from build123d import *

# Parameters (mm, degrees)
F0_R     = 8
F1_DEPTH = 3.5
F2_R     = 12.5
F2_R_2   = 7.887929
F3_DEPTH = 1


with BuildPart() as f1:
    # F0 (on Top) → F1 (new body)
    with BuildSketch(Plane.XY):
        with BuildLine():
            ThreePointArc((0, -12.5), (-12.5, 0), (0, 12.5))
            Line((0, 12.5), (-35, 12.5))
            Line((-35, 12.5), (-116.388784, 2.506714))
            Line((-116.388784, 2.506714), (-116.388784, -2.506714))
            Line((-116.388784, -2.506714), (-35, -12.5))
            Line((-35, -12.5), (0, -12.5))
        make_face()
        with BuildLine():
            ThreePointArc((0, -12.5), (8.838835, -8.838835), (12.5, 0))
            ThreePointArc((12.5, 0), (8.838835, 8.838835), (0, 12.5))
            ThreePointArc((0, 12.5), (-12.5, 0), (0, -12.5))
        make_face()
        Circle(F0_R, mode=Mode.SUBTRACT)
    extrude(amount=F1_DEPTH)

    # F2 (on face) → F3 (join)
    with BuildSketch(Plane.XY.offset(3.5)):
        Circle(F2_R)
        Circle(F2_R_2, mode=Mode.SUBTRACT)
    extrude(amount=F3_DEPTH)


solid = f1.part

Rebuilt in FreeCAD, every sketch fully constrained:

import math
import FreeCAD as App
import Part
import Sketcher

V = App.Vector
Q = App.Units.Quantity

doc = App.newDocument("Part")
body = doc.addObject("PartDesign::Body", "Body")

sketch1 = body.newObject("Sketcher::SketchObject", "Sketch")
sketch1.AttachmentSupport = (doc.getObject("XY_Plane"), [""])
sketch1.MapMode = "FlatFace"
sketch1.addGeometry(Part.LineSegment(V(0, 12, 0), V(-35, 12, 0)), False)
sketch1.addGeometry(Part.LineSegment(V(-35, 12, 0), V(-116, 3, 0)), False)
sketch1.addGeometry(Part.LineSegment(V(-116, 3, 0), V(-116, -3, 0)), False)
sketch1.addGeometry(Part.LineSegment(V(-116, -3, 0), V(-35, -12, 0)), False)
sketch1.addGeometry(Part.LineSegment(V(-35, -12, 0), V(0, -12, 0)), False)
sketch1.addGeometry(Part.ArcOfCircle(Part.Circle(V(0, 0, 0), V(0, 0, 1), 12), math.radians(-90), math.radians(0)), False)
sketch1.addGeometry(Part.ArcOfCircle(Part.Circle(V(0, 0, 0), V(0, 0, 1), 12), math.radians(0), math.radians(90)), False)
sketch1.addGeometry(Part.Circle(V(0, 0, 0), V(0, 0, 1), 8), False)
sketch1.addConstraint(Sketcher.Constraint("Coincident", 0, 2, 1, 1))
sketch1.addConstraint(Sketcher.Constraint("Coincident", 1, 2, 2, 1))
sketch1.addConstraint(Sketcher.Constraint("Coincident", 2, 2, 3, 1))
sketch1.addConstraint(Sketcher.Constraint("Coincident", 3, 2, 4, 1))
sketch1.addConstraint(Sketcher.Constraint("Tangent", 4, 2, 5, 1))
sketch1.addConstraint(Sketcher.Constraint("Tangent", 5, 2, 6, 1))
sketch1.addConstraint(Sketcher.Constraint("Tangent", 6, 2, 0, 1))
sketch1.addConstraint(Sketcher.Constraint("Horizontal", 0))
sketch1.addConstraint(Sketcher.Constraint("Vertical", 2))
sketch1.addConstraint(Sketcher.Constraint("Horizontal", 4))
sketch1.addConstraint(Sketcher.Constraint("Coincident", 5, 3, -1, 1))
sketch1.addConstraint(Sketcher.Constraint("Coincident", 7, 3, -1, 1))
sketch1.addConstraint(Sketcher.Constraint("Equal", 5, 6))
sketch1.addConstraint(Sketcher.Constraint("PointOnObject", 5, 2, -1))
sketch1.addConstraint(Sketcher.Constraint("Vertical", 0, 2, 3, 2))
sketch1.addConstraint(Sketcher.Constraint("Equal", 1, 3))
sketch1.addConstraint(Sketcher.Constraint("Diameter", 7, Q("16 mm")))
sketch1.addConstraint(Sketcher.Constraint("Radius", 5, Q("12.499999 mm")))
sketch1.addConstraint(Sketcher.Constraint("DistanceX", 0, 2, 0, 1, Q("35 mm")))
sketch1.addConstraint(Sketcher.Constraint("Angle", 1, Q("-173 deg")))
sketch1.addConstraint(Sketcher.Constraint("Distance", 1, Q("82 mm")))
pad1 = body.newObject("PartDesign::Pad", "Pad")
pad1.Profile = sketch1
pad1.Length = 3.5

sketch2 = body.newObject("Sketcher::SketchObject", "Sketch001")
sketch2.AttachmentSupport = (doc.getObject("XY_Plane"), [""])
sketch2.MapMode = "FlatFace"
sketch2.AttachmentOffset = App.Placement(V(0, 0, 3.5), App.Rotation())
sketch2.addGeometry(Part.Circle(V(0, 0, 0), V(0, 0, 1), 12), False)
sketch2.addGeometry(Part.Circle(V(0, 0, 0), V(0, 0, 1), 8), False)
sketch2.addConstraint(Sketcher.Constraint("Coincident", 0, 3, -1, 1))
sketch2.addConstraint(Sketcher.Constraint("Coincident", 1, 3, -1, 1))
sketch2.addConstraint(Sketcher.Constraint("Diameter", 0, Q("25 mm")))
sketch2.addConstraint(Sketcher.Constraint("Diameter", 1, Q("15.775858 mm")))
pad2 = body.newObject("PartDesign::Pad", "Pad001")
pad2.Profile = sketch2
pad2.Length = 1

doc.recompute()
